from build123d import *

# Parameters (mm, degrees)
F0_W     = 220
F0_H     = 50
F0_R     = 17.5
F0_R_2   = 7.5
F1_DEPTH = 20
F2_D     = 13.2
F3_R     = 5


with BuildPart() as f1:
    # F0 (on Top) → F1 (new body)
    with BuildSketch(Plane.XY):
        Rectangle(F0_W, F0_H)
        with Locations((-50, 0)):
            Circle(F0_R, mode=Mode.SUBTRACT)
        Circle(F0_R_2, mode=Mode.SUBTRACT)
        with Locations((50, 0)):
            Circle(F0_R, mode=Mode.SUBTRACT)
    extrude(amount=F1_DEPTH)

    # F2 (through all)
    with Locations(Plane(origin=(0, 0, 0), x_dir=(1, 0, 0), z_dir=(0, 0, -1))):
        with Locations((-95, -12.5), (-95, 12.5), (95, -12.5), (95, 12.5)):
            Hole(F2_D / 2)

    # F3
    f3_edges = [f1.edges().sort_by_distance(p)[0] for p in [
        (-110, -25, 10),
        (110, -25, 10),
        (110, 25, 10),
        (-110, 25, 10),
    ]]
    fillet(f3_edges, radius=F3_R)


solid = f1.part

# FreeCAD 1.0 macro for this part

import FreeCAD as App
import Part
import Sketcher
Q = App.Units.Quantity


def edges_at(feature, points):
    """Names of the edges that pass closest to the given points."""
    edges = feature.Shape.Edges
    near = lambda p: min(range(len(edges)), key=lambda i: edges[i].distToShape(Part.Vertex(*p))[0])
    return sorted({f"Edge{near(p) + 1}" for p in points})

doc = App.newDocument("Part")
body = doc.addObject("PartDesign::Body", "Body")

sketch1 = body.newObject("Sketcher::SketchObject", "Sketch")
sketch1.AttachmentSupport = (doc.getObject("XY_Plane"), [""])
sketch1.MapMode = "FlatFace"
sketch1.addGeometry([
    Part.LineSegment(App.Vector(-110, 25, 0), App.Vector(-110, -25, 0)),
    Part.LineSegment(App.Vector(-110, -25, 0), App.Vector(110, -25, 0)),
    Part.LineSegment(App.Vector(110, -25, 0), App.Vector(110, 25, 0)),
    Part.LineSegment(App.Vector(110, 25, 0), App.Vector(-110, 25, 0)),
    Part.Circle(App.Vector(-50, 0, 0), App.Vector(0, 0, 1), 18),
    Part.Circle(App.Vector(0, 0, 0), App.Vector(0, 0, 1), 8),
    Part.Circle(App.Vector(50, 0, 0), App.Vector(0, 0, 1), 18),
], False)
sketch1.addConstraint([
    Sketcher.Constraint("Coincident", 0, 2, 1, 1),
    Sketcher.Constraint("Coincident", 1, 2, 2, 1),
    Sketcher.Constraint("Coincident", 2, 2, 3, 1),
    Sketcher.Constraint("Coincident", 3, 2, 0, 1),
    Sketcher.Constraint("Vertical", 0),
    Sketcher.Constraint("Horizontal", 1),
    Sketcher.Constraint("Vertical", 2),
    Sketcher.Constraint("Horizontal", 3),
    Sketcher.Constraint("Coincident", 5, 3, -1, 1),
    Sketcher.Constraint("Equal", 4, 6),
    Sketcher.Constraint("Symmetric", 4, 3, 6, 3, -1, 1),
    Sketcher.Constraint("Symmetric", 0, 2, 2, 2, -1, 1),
    Sketcher.Constraint("PointOnObject", 4, 3, -1),
    Sketcher.Constraint("Diameter", 4, Q("35 mm")),
    Sketcher.Constraint("Diameter", 5, Q("15 mm")),
    Sketcher.Constraint("DistanceX", 1, 1, 1, 2, Q("220 mm")),
    Sketcher.Constraint("DistanceY", 0, 2, 0, 1, Q("50 mm")),
    Sketcher.Constraint("DistanceX", 4, 3, -1, 1, Q("50 mm")),
])
pad1 = body.newObject("PartDesign::Pad", "Pad")
pad1.Profile = sketch1
pad1.Length = 20

sketch2 = body.newObject("Sketcher::SketchObject", "Sketch001")
sketch2.AttachmentSupport = (doc.getObject("XY_Plane"), [""])
sketch2.MapMode = "FlatFace"
sketch2.addGeometry([
    Part.Circle(App.Vector(-95, 12, 0), App.Vector(0, 0, 1), 7),
    Part.Circle(App.Vector(-95, -12, 0), App.Vector(0, 0, 1), 7),
    Part.Circle(App.Vector(95, 12, 0), App.Vector(0, 0, 1), 7),
    Part.Circle(App.Vector(95, -12, 0), App.Vector(0, 0, 1), 7),
], False)
sketch2.addConstraint([
    Sketcher.Constraint("Equal", 0, 1),
    Sketcher.Constraint("Equal", 1, 2),
    Sketcher.Constraint("Equal", 2, 3),
    Sketcher.Constraint("Symmetric", 1, 3, 2, 3, -1, 1),
    Sketcher.Constraint("Symmetric", 0, 3, 3, 3, -1, 1),
    Sketcher.Constraint("Symmetric", 0, 3, 2, 3, -2),
    Sketcher.Constraint("Diameter", 0, Q("13.2 mm")),
    Sketcher.Constraint("DistanceX", 0, 3, -1, 1, Q("95 mm")),
    Sketcher.Constraint("DistanceY", 1, 3, 0, 3, Q("25 mm")),
])
doc.recompute()
hole = body.newObject("PartDesign::Hole", "Hole")
hole.Profile = sketch2
hole.ThreadType = "None"
hole.Diameter = 13.2
hole.DepthType = "ThroughAll"
hole.Reversed = True
doc.recompute()

fillet = body.newObject("PartDesign::Fillet", "Fillet")
fillet.Base = (hole, edges_at(hole, [
    (-110, -25, 10),
    (110, -25, 10),
    (110, 25, 10),
    (-110, 25, 10),
]))
fillet.Radius = 5

doc.recompute()
